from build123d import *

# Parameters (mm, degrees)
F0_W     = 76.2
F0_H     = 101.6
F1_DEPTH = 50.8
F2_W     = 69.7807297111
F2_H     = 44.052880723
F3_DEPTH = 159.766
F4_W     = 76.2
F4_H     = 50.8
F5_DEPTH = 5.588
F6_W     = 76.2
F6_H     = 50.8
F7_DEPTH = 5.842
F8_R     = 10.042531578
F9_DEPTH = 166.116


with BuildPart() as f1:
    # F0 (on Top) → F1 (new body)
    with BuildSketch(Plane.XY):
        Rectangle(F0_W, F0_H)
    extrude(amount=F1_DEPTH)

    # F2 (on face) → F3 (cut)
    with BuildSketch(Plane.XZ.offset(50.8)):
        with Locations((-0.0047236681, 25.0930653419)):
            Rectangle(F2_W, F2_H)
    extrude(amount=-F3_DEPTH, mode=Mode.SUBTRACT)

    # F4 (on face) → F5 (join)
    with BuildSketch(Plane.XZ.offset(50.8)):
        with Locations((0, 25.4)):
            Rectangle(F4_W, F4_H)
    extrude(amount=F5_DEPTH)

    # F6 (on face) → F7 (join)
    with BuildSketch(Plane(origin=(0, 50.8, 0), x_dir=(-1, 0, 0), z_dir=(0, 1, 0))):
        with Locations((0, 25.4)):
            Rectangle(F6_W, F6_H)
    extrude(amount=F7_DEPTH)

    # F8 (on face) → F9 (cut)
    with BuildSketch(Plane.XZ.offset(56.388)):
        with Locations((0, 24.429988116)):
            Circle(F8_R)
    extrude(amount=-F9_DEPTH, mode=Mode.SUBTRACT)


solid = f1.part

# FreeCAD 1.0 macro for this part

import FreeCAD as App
import Part
import Sketcher
Q = App.Units.Quantity


def add_polygon(sketch, points):
    """Adds a closed chain of lines whose ends are joined by coincident constraints."""
    first, n = sketch.GeometryCount, len(points)
    for a, b in zip(points, points[1:] + points[:1]):
        sketch.addGeometry(Part.LineSegment(App.Vector(*a, 0), App.Vector(*b, 0)), False)
    for i in range(n):
        sketch.addConstraint(Sketcher.Constraint("Coincident", first + i, 2, first + (i + 1) % n, 1))

doc = App.newDocument("Part")
body = doc.addObject("PartDesign::Body", "Body")

sketch1 = body.newObject("Sketcher::SketchObject", "Sketch")
sketch1.AttachmentSupport = (doc.getObject("XY_Plane"), [""])
sketch1.MapMode = "FlatFace"
add_polygon(sketch1, [(-38, 51), (-38, -51), (38, -51), (38, 51)])
sketch1.addConstraint(Sketcher.Constraint("Vertical", 0))
sketch1.addConstraint(Sketcher.Constraint("Horizontal", 1))
sketch1.addConstraint(Sketcher.Constraint("Vertical", 2))
sketch1.addConstraint(Sketcher.Constraint("Horizontal", 3))
sketch1.addConstraint(Sketcher.Constraint("Symmetric", 0, 2, 2, 2, -1, 1))
sketch1.addConstraint(Sketcher.Constraint("DistanceX", 1, 1, 1, 2, Q("3 in")))
sketch1.addConstraint(Sketcher.Constraint("DistanceY", 0, 2, 0, 1, Q("4 in")))
pad1 = body.newObject("PartDesign::Pad", "Pad")
pad1.Profile = sketch1
pad1.Length = Q("2 in")

sketch2 = body.newObject("Sketcher::SketchObject", "Sketch001")
sketch2.AttachmentSupport = (doc.getObject("XZ_Plane"), [""])
sketch2.MapMode = "FlatFace"
sketch2.AttachmentOffset = App.Placement(App.Vector(0, 0, 2 * 25.4), App.Rotation())
add_polygon(sketch2, [(-35, 47), (-35, 3), (35, 3), (35, 47)])
sketch2.addConstraint(Sketcher.Constraint("Vertical", 0))
sketch2.addConstraint(Sketcher.Constraint("Horizontal", 1))
sketch2.addConstraint(Sketcher.Constraint("Vertical", 2))
sketch2.addConstraint(Sketcher.Constraint("Horizontal", 3))
sketch2.addConstraint(Sketcher.Constraint("DistanceX", 1, 1, 1, 2, Q("69.78073 mm")))
sketch2.addConstraint(Sketcher.Constraint("DistanceY", 0, 2, 0, 1, Q("44.052881 mm")))
sketch2.addConstraint(Sketcher.Constraint("DistanceX", 0, 2, -1, 1, Q("34.895089 mm")))
sketch2.addConstraint(Sketcher.Constraint("DistanceY", -1, 1, 0, 2, Q("3.066625 mm")))
pocket1 = body.newObject("PartDesign::Pocket", "Pocket")
pocket1.Profile = sketch2
pocket1.Length = Q("6.29 in")

sketch3 = body.newObject("Sketcher::SketchObject", "Sketch002")
sketch3.AttachmentSupport = (doc.getObject("XZ_Plane"), [""])
sketch3.MapMode = "FlatFace"
sketch3.AttachmentOffset = App.Placement(App.Vector(0, 0, 2 * 25.4), App.Rotation())
add_polygon(sketch3, [(-38, 51), (-38, 0), (38, 0), (38, 51)])
sketch3.addConstraint(Sketcher.Constraint("Vertical", 0))
sketch3.addConstraint(Sketcher.Constraint("Horizontal", 1))
sketch3.addConstraint(Sketcher.Constraint("Vertical", 2))
sketch3.addConstraint(Sketcher.Constraint("Horizontal", 3))
sketch3.addConstraint(Sketcher.Constraint("Symmetric", 0, 2, 1, 2, -1, 1))
sketch3.addConstraint(Sketcher.Constraint("DistanceX", 1, 1, 1, 2, Q("3 in")))
sketch3.addConstraint(Sketcher.Constraint("DistanceY", 0, 2, 0, 1, Q("2 in")))
pad2 = body.newObject("PartDesign::Pad", "Pad001")
pad2.Profile = sketch3
pad2.Length = Q("0.22 in")

sketch4 = body.newObject("Sketcher::SketchObject", "Sketch003")
sketch4.AttachmentSupport = (doc.getObject("XZ_Plane"), [""])
sketch4.MapMode = "FlatFace"
sketch4.AttachmentOffset = App.Placement(App.Vector(0, 0, -2 * 25.4), App.Rotation())
add_polygon(sketch4, [(38, 51), (38, 0), (-38, 0), (-38, 51)])
sketch4.addConstraint(Sketcher.Constraint("Vertical", 0))
sketch4.addConstraint(Sketcher.Constraint("Horizontal", 1))
sketch4.addConstraint(Sketcher.Constraint("Vertical", 2))
sketch4.addConstraint(Sketcher.Constraint("Horizontal", 3))
sketch4.addConstraint(Sketcher.Constraint("Symmetric", 0, 2, 1, 2, -1, 1))
sketch4.addConstraint(Sketcher.Constraint("DistanceX", 1, 2, 1, 1, Q("3 in")))
sketch4.addConstraint(Sketcher.Constraint("DistanceY", 0, 2, 0, 1, Q("2 in")))
pad3 = body.newObject("PartDesign::Pad", "Pad002")
pad3.Profile = sketch4
pad3.Length = Q("0.23 in")
pad3.Reversed = True

sketch5 = body.newObject("Sketcher::SketchObject", "Sketch004")
sketch5.AttachmentSupport = (doc.getObject("XZ_Plane"), [""])
sketch5.MapMode = "FlatFace"
sketch5.AttachmentOffset = App.Placement(App.Vector(0, 0, 2.22 * 25.4), App.Rotation())
sketch5.addGeometry(Part.Circle(App.Vector(0, 24, 0), App.Vector(0, 0, 1), 10), False)
sketch5.addConstraint(Sketcher.Constraint("PointOnObject", 0, 3, -2))
sketch5.addConstraint(Sketcher.Constraint("Diameter", 0, Q("20.085063 mm")))
sketch5.addConstraint(Sketcher.Constraint("DistanceY", -1, 1, 0, 3, Q("24.429988 mm")))
pocket2 = body.newObject("PartDesign::Pocket", "Pocket001")
pocket2.Profile = sketch5
pocket2.Length = Q("6.54 in")

doc.recompute()
